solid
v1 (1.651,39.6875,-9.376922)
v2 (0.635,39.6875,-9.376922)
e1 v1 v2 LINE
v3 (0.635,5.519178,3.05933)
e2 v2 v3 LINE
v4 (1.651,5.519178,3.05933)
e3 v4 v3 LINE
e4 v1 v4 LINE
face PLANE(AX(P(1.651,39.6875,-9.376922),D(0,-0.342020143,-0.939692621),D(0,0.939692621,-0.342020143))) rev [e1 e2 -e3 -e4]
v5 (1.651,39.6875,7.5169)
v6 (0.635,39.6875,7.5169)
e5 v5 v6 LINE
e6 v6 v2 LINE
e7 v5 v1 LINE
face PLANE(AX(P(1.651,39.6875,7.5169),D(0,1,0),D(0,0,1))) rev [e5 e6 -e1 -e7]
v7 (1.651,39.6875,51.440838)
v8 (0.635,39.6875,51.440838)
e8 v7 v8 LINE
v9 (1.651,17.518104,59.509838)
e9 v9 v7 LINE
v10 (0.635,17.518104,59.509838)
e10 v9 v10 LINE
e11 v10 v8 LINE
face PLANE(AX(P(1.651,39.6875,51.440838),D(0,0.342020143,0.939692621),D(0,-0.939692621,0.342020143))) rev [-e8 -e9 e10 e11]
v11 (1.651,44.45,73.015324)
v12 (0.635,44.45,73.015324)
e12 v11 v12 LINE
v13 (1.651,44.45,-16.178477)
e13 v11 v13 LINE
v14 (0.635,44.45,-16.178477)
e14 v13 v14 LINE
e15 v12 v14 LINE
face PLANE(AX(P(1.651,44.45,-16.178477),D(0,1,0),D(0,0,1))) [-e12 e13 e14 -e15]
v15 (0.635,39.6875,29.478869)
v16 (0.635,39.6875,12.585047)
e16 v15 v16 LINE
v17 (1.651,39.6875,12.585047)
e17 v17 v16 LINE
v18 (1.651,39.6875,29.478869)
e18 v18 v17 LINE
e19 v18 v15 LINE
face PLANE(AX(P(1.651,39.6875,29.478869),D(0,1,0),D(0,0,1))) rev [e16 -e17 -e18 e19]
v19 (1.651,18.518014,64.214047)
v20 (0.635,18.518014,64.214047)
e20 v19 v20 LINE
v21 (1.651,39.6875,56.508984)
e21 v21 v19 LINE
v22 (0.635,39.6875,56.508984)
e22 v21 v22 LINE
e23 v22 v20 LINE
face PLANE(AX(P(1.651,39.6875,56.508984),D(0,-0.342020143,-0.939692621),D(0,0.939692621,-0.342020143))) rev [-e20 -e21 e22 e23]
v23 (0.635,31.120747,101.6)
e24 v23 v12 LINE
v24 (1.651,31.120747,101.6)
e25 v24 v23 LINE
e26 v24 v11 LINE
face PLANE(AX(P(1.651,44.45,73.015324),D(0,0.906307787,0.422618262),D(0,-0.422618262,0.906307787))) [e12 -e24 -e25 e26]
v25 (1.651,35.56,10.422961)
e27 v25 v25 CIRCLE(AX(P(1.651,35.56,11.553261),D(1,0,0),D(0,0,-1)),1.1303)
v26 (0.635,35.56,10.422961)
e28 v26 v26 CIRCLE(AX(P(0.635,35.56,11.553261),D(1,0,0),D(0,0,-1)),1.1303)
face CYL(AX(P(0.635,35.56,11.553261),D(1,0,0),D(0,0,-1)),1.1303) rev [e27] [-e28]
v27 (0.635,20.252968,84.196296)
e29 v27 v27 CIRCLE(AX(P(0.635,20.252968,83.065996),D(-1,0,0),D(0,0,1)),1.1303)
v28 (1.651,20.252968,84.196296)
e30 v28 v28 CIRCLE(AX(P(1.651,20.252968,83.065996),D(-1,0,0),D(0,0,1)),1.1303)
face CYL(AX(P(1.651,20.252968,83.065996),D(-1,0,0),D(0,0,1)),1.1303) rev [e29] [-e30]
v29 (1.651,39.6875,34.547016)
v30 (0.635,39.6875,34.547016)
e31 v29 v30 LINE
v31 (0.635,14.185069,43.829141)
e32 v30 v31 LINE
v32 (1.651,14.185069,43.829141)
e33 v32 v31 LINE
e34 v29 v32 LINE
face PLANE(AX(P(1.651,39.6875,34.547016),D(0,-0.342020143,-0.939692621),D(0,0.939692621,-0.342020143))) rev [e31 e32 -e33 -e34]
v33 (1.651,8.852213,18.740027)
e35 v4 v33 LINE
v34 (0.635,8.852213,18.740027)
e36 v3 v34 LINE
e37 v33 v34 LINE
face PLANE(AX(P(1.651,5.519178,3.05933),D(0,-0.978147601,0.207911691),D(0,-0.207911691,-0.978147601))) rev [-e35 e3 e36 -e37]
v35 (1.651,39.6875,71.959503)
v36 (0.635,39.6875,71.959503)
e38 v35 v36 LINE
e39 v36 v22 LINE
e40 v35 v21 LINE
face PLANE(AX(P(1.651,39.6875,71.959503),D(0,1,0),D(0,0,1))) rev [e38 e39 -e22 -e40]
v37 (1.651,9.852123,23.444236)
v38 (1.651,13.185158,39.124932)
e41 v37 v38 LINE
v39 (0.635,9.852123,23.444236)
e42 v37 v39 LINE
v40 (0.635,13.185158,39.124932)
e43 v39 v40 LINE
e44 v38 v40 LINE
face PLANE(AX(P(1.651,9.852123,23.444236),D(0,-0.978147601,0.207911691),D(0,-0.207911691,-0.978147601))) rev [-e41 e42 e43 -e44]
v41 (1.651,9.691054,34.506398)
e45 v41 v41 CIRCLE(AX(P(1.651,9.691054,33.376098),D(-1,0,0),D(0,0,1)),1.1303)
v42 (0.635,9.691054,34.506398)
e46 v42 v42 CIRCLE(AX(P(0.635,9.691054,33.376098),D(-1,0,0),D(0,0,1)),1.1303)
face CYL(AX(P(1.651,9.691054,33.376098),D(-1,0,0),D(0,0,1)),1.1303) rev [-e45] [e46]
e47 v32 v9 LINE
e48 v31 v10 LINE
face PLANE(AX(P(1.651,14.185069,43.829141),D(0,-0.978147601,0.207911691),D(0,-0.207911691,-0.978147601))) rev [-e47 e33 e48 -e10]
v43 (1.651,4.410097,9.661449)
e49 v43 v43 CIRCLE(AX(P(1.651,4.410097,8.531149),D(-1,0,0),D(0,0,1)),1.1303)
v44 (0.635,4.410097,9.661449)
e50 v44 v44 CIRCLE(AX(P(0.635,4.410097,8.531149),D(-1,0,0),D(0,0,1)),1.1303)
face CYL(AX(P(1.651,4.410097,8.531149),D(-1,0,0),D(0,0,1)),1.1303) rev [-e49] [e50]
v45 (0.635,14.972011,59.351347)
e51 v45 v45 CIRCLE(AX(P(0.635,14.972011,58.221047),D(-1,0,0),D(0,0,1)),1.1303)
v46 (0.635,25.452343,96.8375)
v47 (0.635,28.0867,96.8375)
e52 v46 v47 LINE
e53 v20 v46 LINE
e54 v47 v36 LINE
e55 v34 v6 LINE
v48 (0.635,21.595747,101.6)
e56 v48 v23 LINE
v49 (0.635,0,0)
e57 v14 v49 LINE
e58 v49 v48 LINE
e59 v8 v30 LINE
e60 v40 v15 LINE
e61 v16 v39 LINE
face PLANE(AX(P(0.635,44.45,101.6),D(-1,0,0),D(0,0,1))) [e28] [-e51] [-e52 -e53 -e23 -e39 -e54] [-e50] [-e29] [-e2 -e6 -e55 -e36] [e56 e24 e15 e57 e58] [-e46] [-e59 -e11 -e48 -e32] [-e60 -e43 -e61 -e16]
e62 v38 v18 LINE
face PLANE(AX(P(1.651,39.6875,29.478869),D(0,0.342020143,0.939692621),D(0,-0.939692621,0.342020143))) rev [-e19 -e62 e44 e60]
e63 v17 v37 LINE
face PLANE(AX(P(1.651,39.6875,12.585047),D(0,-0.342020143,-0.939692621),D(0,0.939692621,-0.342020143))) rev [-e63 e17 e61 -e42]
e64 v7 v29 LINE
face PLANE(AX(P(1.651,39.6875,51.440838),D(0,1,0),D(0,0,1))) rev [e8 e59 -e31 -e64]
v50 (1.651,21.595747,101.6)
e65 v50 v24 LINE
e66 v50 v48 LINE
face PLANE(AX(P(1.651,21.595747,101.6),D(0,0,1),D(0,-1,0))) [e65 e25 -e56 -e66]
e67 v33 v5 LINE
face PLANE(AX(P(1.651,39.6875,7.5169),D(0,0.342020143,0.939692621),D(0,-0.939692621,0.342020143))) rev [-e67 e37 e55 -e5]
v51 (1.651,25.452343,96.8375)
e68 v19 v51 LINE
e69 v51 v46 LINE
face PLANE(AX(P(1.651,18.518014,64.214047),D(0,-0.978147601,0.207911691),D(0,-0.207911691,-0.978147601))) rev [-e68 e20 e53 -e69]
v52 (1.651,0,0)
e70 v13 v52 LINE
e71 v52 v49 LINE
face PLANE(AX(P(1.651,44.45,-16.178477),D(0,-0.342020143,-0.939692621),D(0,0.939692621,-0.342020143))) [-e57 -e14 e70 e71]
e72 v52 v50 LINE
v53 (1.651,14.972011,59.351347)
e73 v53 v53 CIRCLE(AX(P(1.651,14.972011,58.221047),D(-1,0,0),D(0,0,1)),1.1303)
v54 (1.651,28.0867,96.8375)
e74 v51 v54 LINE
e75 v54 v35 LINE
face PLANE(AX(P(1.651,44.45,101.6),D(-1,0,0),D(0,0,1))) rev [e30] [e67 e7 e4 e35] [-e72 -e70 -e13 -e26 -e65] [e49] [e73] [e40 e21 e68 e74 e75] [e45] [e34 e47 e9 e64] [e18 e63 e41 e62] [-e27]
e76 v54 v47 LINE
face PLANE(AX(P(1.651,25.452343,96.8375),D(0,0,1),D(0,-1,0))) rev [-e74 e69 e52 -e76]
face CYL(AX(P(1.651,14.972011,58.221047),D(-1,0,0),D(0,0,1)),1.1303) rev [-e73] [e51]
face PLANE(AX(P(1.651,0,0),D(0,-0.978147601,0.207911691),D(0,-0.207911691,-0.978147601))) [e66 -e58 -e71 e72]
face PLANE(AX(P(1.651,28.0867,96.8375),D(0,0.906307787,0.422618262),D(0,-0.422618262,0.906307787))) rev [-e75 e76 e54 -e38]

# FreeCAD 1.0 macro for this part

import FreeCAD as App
import Part
import Sketcher
from FreeCAD import Vector
Q = App.Units.Quantity


def add_polygon(sketch, points):
    """Adds a closed chain of lines whose ends are joined by coincident constraints."""
    first, n = sketch.GeometryCount, len(points)
    for a, b in zip(points, points[1:] + points[:1]):
        sketch.addGeometry(Part.LineSegment(App.Vector(*a, 0), App.Vector(*b, 0)), False)
    for i in range(n):
        sketch.addConstraint(Sketcher.Constraint("Coincident", first + i, 2, first + (i + 1) % n, 1))

doc = App.newDocument("Part")
body = doc.addObject("PartDesign::Body", "Body")

sketch1 = body.newObject("Sketcher::SketchObject", "Sketch")
sketch1.AttachmentSupport = (doc.getObject("YZ_Plane"), [""])
sketch1.MapMode = "FlatFace"
add_polygon(sketch1, [(0, 0), (44, -16), (44, 73), (31, 102), (22, 102)])
sketch1.addConstraint(Sketcher.Constraint("Vertical", 1))
sketch1.addConstraint(Sketcher.Constraint("Horizontal", 3))
sketch1.addConstraint(Sketcher.Constraint("Coincident", 4, 2, -1, 1))
sketch1.addConstraint(Sketcher.Constraint("DistanceY", -1, 1, 2, 2, Q("4 in")))
sketch1.addConstraint(Sketcher.Constraint("Angle", 0, Q("-20 deg")))
sketch1.addConstraint(Sketcher.Constraint("Angle", 2, Q("115 deg")))
sketch1.addConstraint(Sketcher.Constraint("Angle", 4, Q("-102 deg")))
sketch1.addConstraint(Sketcher.Constraint("DistanceX", 3, 2, 3, 1, Q("0.375 in")))
sketch1.addConstraint(Sketcher.Constraint("DistanceX", -1, 1, 0, 2, Q("1.75 in")))
pad1 = body.newObject("PartDesign::Pad", "Pad")
pad1.Profile = sketch1
pad1.Length = Q("0.025 in")

sketch2 = body.newObject("Sketcher::SketchObject", "Sketch001")
sketch2.AttachmentSupport = (doc.getObject("YZ_Plane"), [""])
sketch2.MapMode = "FlatFace"
sketch2.addGeometry(Part.Circle(Vector(4.4, 8.5, 0), Vector(0, 0, 1), 1.6), False)
sketch2.addGeometry(Part.Circle(Vector(9.7, 33.4, 0), Vector(0, 0, 1), 1.6), False)
sketch2.addGeometry(Part.Circle(Vector(15, 58.2, 0), Vector(0, 0, 1), 1.6), False)
sketch2.addGeometry(Part.Circle(Vector(20.3, 83.1, 0), Vector(0, 0, 1), 1.6), False)
sketch2.addConstraint(Sketcher.Constraint("Equal", 0, 1))
sketch2.addConstraint(Sketcher.Constraint("Equal", 1, 2))
sketch2.addConstraint(Sketcher.Constraint("Equal", 2, 3))
sketch2.addConstraint(Sketcher.Constraint("Diameter", 0, Q("0.125 in")))
sketch2.addConstraint(Sketcher.Constraint("DistanceY", -1, 1, 1, 3, 33.376098))
sketch2.addConstraint(Sketcher.Constraint("DistanceY", 0, 3, 2, 3, 49.689898))
sketch2.addConstraint(Sketcher.Constraint("DistanceY", 1, 3, 3, 3, 49.689898))
sketch2.addConstraint(Sketcher.Constraint("DistanceY", -1, 1, 0, 3, 8.531149))
sketch2.addConstraint(Sketcher.Constraint("DistanceX", -1, 1, 2, 3, 14.972011))
sketch2.addConstraint(Sketcher.Constraint("DistanceX", 0, 3, 3, 3, 15.842871))
sketch2.addConstraint(Sketcher.Constraint("DistanceX", -1, 1, 0, 3, 4.410097))
sketch2.addConstraint(Sketcher.Constraint("DistanceX", -1, 1, 1, 3, 9.691054))
pocket1 = body.newObject("PartDesign::Pocket", "Pocket")
pocket1.Profile = sketch2
pocket1.Type = "ThroughAll"
pocket1.Reversed = True

sketch3 = body.newObject("Sketcher::SketchObject", "Sketch002")
sketch3.AttachmentSupport = (doc.getObject("YZ_Plane"), [""])
sketch3.MapMode = "FlatFace"
add_polygon(sketch3, [(44, 73), (44, -16), (0, 0), (22, 102), (31, 102)])
sketch3.addConstraint(Sketcher.Constraint("Vertical", 0))
sketch3.addConstraint(Sketcher.Constraint("Horizontal", 3))
sketch3.addConstraint(Sketcher.Constraint("Coincident", 1, 2, -1, 1))
sketch3.addConstraint(Sketcher.Constraint("DistanceY", -1, 1, 2, 2, Q("4 in")))
sketch3.addConstraint(Sketcher.Constraint("Angle", 1, Q("160 deg")))
sketch3.addConstraint(Sketcher.Constraint("Angle", 2, Q("78 deg")))
sketch3.addConstraint(Sketcher.Constraint("Angle", 4, Q("-65 deg")))
sketch3.addConstraint(Sketcher.Constraint("DistanceX", 3, 1, 3, 2, Q("0.375 in")))
sketch3.addConstraint(Sketcher.Constraint("DistanceX", -1, 1, 0, 2, Q("1.75 in")))
pocket2 = body.newObject("PartDesign::Pocket", "Pocket001")
pocket2.Profile = sketch3
pocket2.Length = Q("0.025 in")
pocket2.Reversed = True
body2 = doc.addObject("PartDesign::Body", "Body001")

sketch4 = body2.newObject("Sketcher::SketchObject", "Sketch003")
sketch4.AttachmentSupport = (doc.getObject("YZ_Plane001"), [""])
sketch4.MapMode = "FlatFace"
sketch4.AttachmentOffset = App.Placement(Vector(0, 0, 0.025 * 25.4), App.Rotation())
add_polygon(sketch4, [(44.5, -16.2), (0, 0), (21.6, 101.6), (31.1, 101.6), (44.5, 73)])
sketch4.addGeometry(Part.Circle(Vector(4.4, 8.5, 0), Vector(0, 0, 1), 1.1), False)
sketch4.addGeometry(Part.Circle(Vector(9.7, 33.4, 0), Vector(0, 0, 1), 1.1), False)
sketch4.addGeometry(Part.Circle(Vector(15, 58.2, 0), Vector(0, 0, 1), 1.1), False)
sketch4.addGeometry(Part.Circle(Vector(20.3, 83.1, 0), Vector(0, 0, 1), 1.1), False)
add_polygon(sketch4, [(39.7, -9.4), (39.7, 7.5), (8.9, 18.7), (5.5, 3.1)])
add_polygon(sketch4, [(13.2, 39.1), (9.9, 23.4), (39.7, 12.6), (39.7, 29.5)])
add_polygon(sketch4, [(14.2, 43.8), (39.7, 34.5), (39.7, 51.4), (17.5, 59.5)])
add_polygon(sketch4, [(18.5, 64.2), (39.7, 56.5), (39.7, 72), (28.1, 96.8), (25.5, 96.8)])
sketch4.addConstraint(Sketcher.Constraint("Horizontal", 2))
sketch4.addConstraint(Sketcher.Constraint("Vertical", 4))
sketch4.addConstraint(Sketcher.Constraint("Vertical", 9))
sketch4.addConstraint(Sketcher.Constraint("Vertical", 15))
sketch4.addConstraint(Sketcher.Constraint("Vertical", 18))
sketch4.addConstraint(Sketcher.Constraint("Vertical", 22))
sketch4.addConstraint(Sketcher.Constraint("Horizontal", 24))
sketch4.addConstraint(Sketcher.Constraint("Coincident", 0, 2, -1, 1))
sketch4.addConstraint(Sketcher.Constraint("Equal", 5, 6))
sketch4.addConstraint(Sketcher.Constraint("Equal", 6, 7))
sketch4.addConstraint(Sketcher.Constraint("Equal", 7, 8))
sketch4.addConstraint(Sketcher.Constraint("Parallel", 0, 10))
sketch4.addConstraint(Sketcher.Constraint("Parallel", 1, 11))
sketch4.addConstraint(Sketcher.Constraint("Parallel", 10, 12))
sketch4.addConstraint(Sketcher.Constraint("Parallel", 11, 13))
sketch4.addConstraint(Sketcher.Constraint("Parallel", 12, 14))
sketch4.addConstraint(Sketcher.Constraint("Parallel", 14, 16))
sketch4.addConstraint(Sketcher.Constraint("Parallel", 16, 17))
sketch4.addConstraint(Sketcher.Constraint("Parallel", 17, 19))
sketch4.addConstraint(Sketcher.Constraint("Parallel", 13, 20))
sketch4.addConstraint(Sketcher.Constraint("Parallel", 19, 21))
sketch4.addConstraint(Sketcher.Constraint("Parallel", 3, 23))
sketch4.addConstraint(Sketcher.Constraint("Parallel", 20, 25))
sketch4.addConstraint(Sketcher.Constraint("Vertical", 12, 2, 14, 2))
sketch4.addConstraint(Sketcher.Constraint("Vertical", 15, 2, 17, 2))
sketch4.addConstraint(Sketcher.Constraint("Vertical", 18, 2, 21, 2))
sketch4.addConstraint(Sketcher.Constraint("Equal", 9, 15))
sketch4.addConstraint(Sketcher.Constraint("Equal", 15, 18))
sketch4.addConstraint(Sketcher.Constraint("Diameter", 5, Q("0.089 in")))
sketch4.addConstraint(Sketcher.Constraint("DistanceY", -1, 1, 1, 2, Q("4 in")))
sketch4.addConstraint(Sketcher.Constraint("Angle", 0, Q("160 deg")))
sketch4.addConstraint(Sketcher.Constraint("Angle", 1, Q("78 deg")))
sketch4.addConstraint(Sketcher.Constraint("Angle", 3, Q("-65 deg")))
sketch4.addConstraint(Sketcher.Constraint("DistanceX", 2, 1, 2, 2, Q("0.375 in")))
sketch4.addConstraint(Sketcher.Constraint("DistanceX", -1, 1, 3, 2, Q("1.75 in")))
sketch4.addConstraint(Sketcher.Constraint("DistanceX", -1, 1, 9, 2, Q("1.5625 in")))
sketch4.addConstraint(Sketcher.Constraint("DistanceY", -1, 1, 23, 2, Q("3.8125 in")))
sketch4.addConstraint(Sketcher.Constraint("DistanceX", 8, 3, 24, 2, Q("0.2046998 in")))
sketch4.addConstraint(Sketcher.Constraint("DistanceY", 22, 1, 22, 2, 15.450519))
sketch4.addConstraint(Sketcher.Constraint("DistanceY", -1, 1, 6, 3, 33.376098))
sketch4.addConstraint(Sketcher.Constraint("DistanceY", -1, 1, 9, 2, 7.5169))
sketch4.addConstraint(Sketcher.Constraint("DistanceX", -1, 1, 23, 2, 28.0867))
sketch4.addConstraint(Sketcher.Constraint("DistanceY", 5, 3, 7, 3, 49.689898))
sketch4.addConstraint(Sketcher.Constraint("DistanceY", 6, 3, 8, 3, 49.689898))
sketch4.addConstraint(Sketcher.Constraint("DistanceX", 10, 2, 7, 3, 6.119798))
sketch4.addConstraint(Sketcher.Constraint("DistanceY", 18, 2, 19, 2, 8.069))
sketch4.addConstraint(Sketcher.Constraint("DistanceY", 7, 3, 25, 2, 5.993))
sketch4.addConstraint(Sketcher.Constraint("Distance", 12, 36.361169))
sketch4.addConstraint(Sketcher.Constraint("Distance", 17, 27.139121))
sketch4.addConstraint(Sketcher.Constraint("Distance", 25, 33.35228))
sketch4.addConstraint(Sketcher.Constraint("DistanceY", -1, 1, 15, 2, 29.478869))
sketch4.addConstraint(Sketcher.Constraint("DistanceX", -1, 1, 16, 2, 13.185158))
sketch4.addConstraint(Sketcher.Constraint("DistanceY", -1, 1, 19, 2, 59.509838))
sketch4.addConstraint(Sketcher.Constraint("DistanceX", 5, 3, 8, 3, 15.842871))
sketch4.addConstraint(Sketcher.Constraint("DistanceX", 10, 2, 6, 3, 0.838841))
pad2 = body2.newObject("PartDesign::Pad", "Pad001")
pad2.Profile = sketch4
pad2.Length = Q("0.04 in")

sketch5 = body2.newObject("Sketcher::SketchObject", "Sketch004")
sketch5.AttachmentSupport = (doc.getObject("YZ_Plane001"), [""])
sketch5.MapMode = "FlatFace"
sketch5.AttachmentOffset = App.Placement(Vector(0, 0, 0.065 * 25.4), App.Rotation())
sketch5.addGeometry(Part.Circle(Vector(35.6, 11.6, 0), Vector(0, 0, 1), 1.1), False)
sketch5.addConstraint(Sketcher.Constraint("Diameter", 0, Q("0.089 in")))
sketch5.addConstraint(Sketcher.Constraint("DistanceX", -1, 1, 0, 3, Q("1.4 in")))
sketch5.addConstraint(Sketcher.Constraint("DistanceY", -1, 1, 0, 3, 11.553261))
pocket3 = body2.newObject("PartDesign::Pocket", "Pocket002")
pocket3.Profile = sketch5
pocket3.Type = "ThroughAll"

doc.recompute()
